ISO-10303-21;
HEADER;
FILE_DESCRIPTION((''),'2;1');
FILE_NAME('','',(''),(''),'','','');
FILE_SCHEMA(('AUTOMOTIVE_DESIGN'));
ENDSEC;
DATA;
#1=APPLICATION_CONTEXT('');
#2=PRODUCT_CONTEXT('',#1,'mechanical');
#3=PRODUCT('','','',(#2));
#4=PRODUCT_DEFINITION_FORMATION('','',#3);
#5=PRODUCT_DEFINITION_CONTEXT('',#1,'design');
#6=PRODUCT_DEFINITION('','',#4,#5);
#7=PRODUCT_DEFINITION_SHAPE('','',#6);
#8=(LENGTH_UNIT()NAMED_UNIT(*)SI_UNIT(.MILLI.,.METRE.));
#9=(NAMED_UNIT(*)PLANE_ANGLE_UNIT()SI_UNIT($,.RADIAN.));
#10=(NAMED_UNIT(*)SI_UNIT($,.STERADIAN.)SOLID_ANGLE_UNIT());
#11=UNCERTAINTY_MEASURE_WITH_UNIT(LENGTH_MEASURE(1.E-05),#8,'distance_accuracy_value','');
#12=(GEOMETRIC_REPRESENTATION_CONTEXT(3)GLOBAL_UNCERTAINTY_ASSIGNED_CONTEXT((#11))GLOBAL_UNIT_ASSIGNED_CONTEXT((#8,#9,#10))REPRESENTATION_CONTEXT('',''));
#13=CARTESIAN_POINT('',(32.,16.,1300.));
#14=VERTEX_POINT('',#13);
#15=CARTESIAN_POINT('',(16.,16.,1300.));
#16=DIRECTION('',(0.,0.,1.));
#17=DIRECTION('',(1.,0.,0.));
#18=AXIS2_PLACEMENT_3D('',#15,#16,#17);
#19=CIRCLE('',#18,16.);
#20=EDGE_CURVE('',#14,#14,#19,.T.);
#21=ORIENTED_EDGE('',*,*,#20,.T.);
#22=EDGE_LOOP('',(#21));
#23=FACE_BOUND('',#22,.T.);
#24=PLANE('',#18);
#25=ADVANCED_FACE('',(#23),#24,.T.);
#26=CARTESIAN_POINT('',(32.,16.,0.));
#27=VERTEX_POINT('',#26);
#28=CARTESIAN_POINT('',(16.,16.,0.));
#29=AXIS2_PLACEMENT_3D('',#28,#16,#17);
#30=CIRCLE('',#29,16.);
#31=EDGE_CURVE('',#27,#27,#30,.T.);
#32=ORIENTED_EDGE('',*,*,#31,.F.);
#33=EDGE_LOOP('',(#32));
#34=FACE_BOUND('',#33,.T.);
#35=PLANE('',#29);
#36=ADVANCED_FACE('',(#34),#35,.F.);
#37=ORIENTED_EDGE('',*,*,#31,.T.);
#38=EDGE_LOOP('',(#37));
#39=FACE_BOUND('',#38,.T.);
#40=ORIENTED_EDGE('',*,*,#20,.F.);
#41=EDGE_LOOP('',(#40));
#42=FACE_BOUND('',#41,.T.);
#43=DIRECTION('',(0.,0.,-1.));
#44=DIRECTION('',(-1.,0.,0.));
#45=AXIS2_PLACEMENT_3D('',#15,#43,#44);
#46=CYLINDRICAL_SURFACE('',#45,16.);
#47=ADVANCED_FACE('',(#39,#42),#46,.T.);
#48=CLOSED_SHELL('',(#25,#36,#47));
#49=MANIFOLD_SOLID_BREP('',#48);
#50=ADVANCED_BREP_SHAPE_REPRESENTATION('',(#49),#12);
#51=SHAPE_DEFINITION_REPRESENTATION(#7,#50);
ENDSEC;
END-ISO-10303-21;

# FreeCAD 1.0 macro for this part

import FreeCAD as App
import Part
import Sketcher
from FreeCAD import Vector

doc = App.newDocument("Part")
body = doc.addObject("PartDesign::Body", "Body")

# Sketch on XY plane
sketch1 = body.newObject("Sketcher::SketchObject", "Sketch")
sketch1.AttachmentSupport = (doc.getObject("XY_Plane"), [""])
sketch1.MapMode = "FlatFace"
sketch1.addGeometry(Part.Circle(Vector(16, 16, 0), Vector(0, 0, 1), 16), False)
sketch1.addConstraint([
    Sketcher.Constraint("Diameter", 0, 32.0),
    Sketcher.Constraint("DistanceX", -1, 1, 0, 3, 16.0),
    Sketcher.Constraint("DistanceY", -1, 1, 0, 3, 16.0),
])
pad1 = body.newObject("PartDesign::Pad", "Pad")
pad1.Profile = sketch1
pad1.Length = 1300

doc.recompute()
